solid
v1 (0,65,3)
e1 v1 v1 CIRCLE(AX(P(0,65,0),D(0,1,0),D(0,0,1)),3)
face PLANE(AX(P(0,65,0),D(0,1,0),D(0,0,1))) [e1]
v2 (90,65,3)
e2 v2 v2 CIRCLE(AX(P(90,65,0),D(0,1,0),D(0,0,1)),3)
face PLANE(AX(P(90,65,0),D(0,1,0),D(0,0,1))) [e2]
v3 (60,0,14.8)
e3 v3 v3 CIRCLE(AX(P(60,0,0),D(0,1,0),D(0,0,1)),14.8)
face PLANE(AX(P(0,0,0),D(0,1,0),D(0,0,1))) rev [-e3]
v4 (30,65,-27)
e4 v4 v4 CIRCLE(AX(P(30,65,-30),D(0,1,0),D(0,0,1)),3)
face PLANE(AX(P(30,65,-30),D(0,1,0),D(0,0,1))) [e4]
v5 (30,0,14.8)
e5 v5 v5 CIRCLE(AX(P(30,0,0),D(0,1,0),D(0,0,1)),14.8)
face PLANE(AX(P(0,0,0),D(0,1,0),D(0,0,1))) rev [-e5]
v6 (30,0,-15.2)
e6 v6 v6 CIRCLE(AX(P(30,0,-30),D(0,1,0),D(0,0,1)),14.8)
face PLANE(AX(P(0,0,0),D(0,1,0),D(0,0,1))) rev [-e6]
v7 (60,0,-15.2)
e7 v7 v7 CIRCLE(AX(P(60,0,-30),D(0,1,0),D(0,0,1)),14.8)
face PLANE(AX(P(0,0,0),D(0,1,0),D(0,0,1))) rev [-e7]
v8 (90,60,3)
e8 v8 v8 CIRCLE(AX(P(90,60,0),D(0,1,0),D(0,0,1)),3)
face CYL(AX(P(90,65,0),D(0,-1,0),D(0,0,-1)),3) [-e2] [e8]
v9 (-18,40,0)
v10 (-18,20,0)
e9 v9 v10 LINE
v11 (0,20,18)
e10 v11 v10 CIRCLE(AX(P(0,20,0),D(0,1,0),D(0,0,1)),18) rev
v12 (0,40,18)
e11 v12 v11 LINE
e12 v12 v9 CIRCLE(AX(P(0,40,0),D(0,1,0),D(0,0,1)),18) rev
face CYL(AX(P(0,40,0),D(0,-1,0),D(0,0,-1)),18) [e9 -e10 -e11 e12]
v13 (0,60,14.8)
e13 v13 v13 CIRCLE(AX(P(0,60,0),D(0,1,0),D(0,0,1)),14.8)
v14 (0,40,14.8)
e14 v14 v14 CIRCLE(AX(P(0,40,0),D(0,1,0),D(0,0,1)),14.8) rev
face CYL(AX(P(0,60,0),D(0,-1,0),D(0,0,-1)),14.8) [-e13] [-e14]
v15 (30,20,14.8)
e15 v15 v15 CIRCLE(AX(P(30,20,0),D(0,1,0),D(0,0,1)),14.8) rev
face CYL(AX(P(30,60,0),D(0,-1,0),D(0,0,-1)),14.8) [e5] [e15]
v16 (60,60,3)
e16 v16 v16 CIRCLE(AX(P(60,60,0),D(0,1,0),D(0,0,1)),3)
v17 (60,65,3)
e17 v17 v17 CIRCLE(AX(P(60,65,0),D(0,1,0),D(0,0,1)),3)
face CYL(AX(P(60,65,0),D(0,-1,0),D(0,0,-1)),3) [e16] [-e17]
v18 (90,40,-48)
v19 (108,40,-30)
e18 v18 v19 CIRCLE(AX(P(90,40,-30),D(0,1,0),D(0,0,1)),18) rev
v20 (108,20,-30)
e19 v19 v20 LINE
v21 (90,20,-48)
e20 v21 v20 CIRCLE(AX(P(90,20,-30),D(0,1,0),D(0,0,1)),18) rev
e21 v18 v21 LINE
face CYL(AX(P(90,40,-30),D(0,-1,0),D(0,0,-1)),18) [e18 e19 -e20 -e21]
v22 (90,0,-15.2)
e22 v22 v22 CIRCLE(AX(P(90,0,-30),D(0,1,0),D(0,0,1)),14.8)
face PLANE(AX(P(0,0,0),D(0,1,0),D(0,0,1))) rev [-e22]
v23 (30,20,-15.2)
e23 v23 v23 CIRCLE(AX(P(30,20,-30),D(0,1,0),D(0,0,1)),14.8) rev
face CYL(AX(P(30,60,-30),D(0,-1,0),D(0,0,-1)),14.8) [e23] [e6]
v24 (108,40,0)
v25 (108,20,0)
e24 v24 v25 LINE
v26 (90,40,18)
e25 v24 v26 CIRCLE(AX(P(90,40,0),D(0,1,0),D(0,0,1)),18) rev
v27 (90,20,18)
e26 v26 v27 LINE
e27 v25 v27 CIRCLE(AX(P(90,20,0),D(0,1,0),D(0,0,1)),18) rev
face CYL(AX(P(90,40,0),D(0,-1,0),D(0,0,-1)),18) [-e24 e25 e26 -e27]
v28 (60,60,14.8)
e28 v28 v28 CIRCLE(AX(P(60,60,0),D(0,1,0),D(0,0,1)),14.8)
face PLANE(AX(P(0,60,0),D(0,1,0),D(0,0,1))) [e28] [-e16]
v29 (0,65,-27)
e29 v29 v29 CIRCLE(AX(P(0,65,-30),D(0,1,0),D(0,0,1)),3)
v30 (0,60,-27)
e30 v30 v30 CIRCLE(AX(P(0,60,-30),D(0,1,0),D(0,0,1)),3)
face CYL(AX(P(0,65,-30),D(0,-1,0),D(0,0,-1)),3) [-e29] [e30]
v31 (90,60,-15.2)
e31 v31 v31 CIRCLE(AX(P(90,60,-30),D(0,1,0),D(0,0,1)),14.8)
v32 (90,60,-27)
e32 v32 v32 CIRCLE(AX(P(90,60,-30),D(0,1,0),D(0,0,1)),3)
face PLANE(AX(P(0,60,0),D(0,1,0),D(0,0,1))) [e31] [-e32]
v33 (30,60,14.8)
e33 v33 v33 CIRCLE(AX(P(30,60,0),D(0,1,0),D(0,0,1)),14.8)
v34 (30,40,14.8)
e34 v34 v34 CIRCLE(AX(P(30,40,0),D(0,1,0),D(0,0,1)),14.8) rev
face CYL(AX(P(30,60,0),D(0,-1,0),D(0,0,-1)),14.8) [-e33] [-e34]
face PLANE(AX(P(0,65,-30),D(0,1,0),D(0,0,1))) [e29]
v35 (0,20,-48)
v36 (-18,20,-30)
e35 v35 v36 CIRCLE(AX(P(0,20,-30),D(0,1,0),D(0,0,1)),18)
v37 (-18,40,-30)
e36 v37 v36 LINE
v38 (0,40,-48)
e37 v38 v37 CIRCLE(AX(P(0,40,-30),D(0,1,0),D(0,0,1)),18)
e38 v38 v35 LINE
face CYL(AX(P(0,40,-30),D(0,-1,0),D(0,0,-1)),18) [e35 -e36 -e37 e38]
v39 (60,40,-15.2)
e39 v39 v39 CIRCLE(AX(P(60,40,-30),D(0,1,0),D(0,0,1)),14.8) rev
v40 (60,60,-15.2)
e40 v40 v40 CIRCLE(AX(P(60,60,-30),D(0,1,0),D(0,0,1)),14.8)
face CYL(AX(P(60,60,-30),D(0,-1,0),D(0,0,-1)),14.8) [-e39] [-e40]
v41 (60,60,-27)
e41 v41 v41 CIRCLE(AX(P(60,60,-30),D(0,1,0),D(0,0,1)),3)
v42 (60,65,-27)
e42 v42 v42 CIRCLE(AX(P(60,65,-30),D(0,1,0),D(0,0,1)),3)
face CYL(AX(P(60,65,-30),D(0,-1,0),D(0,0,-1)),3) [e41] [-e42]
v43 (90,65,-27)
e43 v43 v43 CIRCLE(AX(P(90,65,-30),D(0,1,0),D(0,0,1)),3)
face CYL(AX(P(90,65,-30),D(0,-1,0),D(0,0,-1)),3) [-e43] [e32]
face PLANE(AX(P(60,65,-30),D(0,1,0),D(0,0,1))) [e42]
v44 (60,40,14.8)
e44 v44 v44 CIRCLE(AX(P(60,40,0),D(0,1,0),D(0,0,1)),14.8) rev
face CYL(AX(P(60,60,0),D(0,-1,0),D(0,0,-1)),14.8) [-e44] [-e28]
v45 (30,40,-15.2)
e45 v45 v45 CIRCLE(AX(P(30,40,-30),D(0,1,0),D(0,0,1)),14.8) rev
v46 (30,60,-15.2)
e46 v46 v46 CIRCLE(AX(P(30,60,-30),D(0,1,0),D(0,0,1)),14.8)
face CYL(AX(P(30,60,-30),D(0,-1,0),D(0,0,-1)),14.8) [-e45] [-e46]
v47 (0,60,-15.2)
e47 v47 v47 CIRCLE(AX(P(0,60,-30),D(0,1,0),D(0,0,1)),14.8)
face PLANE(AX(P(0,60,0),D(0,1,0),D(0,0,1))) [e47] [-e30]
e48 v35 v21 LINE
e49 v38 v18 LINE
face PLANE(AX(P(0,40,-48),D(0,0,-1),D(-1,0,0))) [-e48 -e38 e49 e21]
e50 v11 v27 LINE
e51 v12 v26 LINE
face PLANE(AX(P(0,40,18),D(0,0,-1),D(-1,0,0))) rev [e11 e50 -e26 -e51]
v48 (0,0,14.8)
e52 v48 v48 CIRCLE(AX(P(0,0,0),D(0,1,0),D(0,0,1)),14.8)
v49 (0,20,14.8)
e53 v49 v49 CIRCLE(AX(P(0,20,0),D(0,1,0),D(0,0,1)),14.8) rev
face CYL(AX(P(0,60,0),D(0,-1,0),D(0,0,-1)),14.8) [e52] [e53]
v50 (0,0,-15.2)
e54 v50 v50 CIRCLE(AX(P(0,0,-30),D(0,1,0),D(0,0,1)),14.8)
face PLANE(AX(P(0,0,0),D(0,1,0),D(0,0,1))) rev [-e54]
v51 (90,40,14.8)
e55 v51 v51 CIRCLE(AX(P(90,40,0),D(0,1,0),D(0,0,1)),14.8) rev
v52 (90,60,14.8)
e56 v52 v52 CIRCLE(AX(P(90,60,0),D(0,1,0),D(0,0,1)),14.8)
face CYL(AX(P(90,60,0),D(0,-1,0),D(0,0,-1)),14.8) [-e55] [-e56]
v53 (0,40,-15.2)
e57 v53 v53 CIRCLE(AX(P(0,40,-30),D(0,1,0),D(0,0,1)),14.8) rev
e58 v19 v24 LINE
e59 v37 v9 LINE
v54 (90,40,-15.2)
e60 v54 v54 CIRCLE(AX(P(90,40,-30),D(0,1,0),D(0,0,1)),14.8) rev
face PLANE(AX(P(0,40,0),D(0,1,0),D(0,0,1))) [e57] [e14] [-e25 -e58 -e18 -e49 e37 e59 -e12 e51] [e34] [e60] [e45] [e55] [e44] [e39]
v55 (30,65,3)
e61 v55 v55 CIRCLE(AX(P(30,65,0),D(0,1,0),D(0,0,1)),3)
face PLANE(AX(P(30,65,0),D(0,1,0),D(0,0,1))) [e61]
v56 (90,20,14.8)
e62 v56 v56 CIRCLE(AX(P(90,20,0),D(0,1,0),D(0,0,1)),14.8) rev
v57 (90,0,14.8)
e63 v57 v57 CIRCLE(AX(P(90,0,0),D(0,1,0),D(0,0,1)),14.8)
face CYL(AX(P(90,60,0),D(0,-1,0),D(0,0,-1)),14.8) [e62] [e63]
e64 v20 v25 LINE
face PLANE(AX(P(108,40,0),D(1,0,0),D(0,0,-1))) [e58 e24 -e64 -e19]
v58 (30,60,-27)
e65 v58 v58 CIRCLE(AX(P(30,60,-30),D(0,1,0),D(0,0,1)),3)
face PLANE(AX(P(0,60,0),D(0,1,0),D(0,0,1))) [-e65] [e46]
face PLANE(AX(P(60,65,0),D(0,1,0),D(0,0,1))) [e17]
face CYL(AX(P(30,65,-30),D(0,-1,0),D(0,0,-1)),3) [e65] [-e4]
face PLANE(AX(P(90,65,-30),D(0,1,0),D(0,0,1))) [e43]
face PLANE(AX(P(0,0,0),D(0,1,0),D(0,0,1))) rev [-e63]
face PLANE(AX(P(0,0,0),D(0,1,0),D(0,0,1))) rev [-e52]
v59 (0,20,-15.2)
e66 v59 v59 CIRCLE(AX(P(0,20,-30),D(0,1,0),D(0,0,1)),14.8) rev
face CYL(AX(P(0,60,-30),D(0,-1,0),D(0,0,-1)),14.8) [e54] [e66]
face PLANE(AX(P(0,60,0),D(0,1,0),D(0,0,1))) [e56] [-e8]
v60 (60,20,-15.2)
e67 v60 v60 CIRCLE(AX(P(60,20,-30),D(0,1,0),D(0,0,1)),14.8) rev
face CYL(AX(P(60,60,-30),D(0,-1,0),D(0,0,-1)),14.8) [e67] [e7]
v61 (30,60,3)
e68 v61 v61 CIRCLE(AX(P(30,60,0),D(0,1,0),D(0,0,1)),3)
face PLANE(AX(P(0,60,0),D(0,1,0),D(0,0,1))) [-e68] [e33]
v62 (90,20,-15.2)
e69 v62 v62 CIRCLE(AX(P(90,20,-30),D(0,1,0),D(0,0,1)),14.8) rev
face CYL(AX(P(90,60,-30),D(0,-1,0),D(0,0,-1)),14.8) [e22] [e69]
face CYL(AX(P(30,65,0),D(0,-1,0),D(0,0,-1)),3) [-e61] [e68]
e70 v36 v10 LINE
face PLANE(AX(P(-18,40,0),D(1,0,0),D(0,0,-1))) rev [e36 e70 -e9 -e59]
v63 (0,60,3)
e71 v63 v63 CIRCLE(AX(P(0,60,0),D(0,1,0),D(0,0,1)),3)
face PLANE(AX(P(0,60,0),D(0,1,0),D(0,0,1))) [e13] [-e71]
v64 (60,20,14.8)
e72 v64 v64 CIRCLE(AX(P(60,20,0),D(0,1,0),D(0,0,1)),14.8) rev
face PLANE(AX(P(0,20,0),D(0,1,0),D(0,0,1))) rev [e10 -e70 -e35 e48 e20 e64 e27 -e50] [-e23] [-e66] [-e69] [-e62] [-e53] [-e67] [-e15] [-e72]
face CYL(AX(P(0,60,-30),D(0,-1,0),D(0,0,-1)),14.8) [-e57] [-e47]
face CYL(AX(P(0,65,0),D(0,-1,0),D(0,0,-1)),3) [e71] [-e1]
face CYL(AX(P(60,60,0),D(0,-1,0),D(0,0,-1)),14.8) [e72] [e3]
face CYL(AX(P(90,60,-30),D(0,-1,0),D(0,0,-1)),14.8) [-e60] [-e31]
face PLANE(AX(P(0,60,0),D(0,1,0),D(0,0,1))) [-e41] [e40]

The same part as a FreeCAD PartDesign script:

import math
import FreeCAD as App
import Part
import Sketcher
from FreeCAD import Vector
Q = App.Units.Quantity

doc = App.newDocument("Part")
body = doc.addObject("PartDesign::Body", "Body")

# Sketch on XZ plane
sketch1 = doc.addObject("Sketcher::SketchObject", "Sketch")
body.addObject(sketch1)
sketch1.AttachmentSupport = (doc.XZ_Plane, [""])
sketch1.MapMode = "FlatFace"
sketch1.AttachmentOffset = App.Placement(Vector(0, 0, -20), App.Rotation())
sketch1.addGeometry([
    Part.LineSegment(Vector(90, -48, 0), Vector(0, -48, 0)),  # 0
    Part.ArcOfCircle(Part.Circle(Vector(0, -30, 0), Vector(0, 0, 1), 18), math.radians(-180), math.radians(-90)),  # 1
    Part.LineSegment(Vector(-18, -30, 0), Vector(-18, 0, 0)),  # 2
    Part.ArcOfCircle(Part.Circle(Vector(0, 0, 0), Vector(0, 0, 1), 18), math.radians(90), math.radians(180)),  # 3
    Part.LineSegment(Vector(0, 18, 0), Vector(90, 18, 0)),  # 4
    Part.ArcOfCircle(Part.Circle(Vector(90, 0, 0), Vector(0, 0, 1), 18), math.radians(0), math.radians(90)),  # 5
    Part.LineSegment(Vector(108, 0, 0), Vector(108, -30, 0)),  # 6
    Part.ArcOfCircle(Part.Circle(Vector(90, -30, 0), Vector(0, 0, 1), 18), math.radians(-90), math.radians(0)),  # 7
], False)
sketch1.addConstraint([
    Sketcher.Constraint("Tangent", 0, 2, 1, 2),
    Sketcher.Constraint("Tangent", 1, 1, 2, 1),
    Sketcher.Constraint("Tangent", 2, 2, 3, 2),
    Sketcher.Constraint("Tangent", 3, 1, 4, 1),
    Sketcher.Constraint("Tangent", 4, 2, 5, 2),
    Sketcher.Constraint("Tangent", 5, 1, 6, 1),
    Sketcher.Constraint("Tangent", 6, 2, 7, 2),
    Sketcher.Constraint("Tangent", 7, 1, 0, 1),
    Sketcher.Constraint("Horizontal", 0),
    Sketcher.Constraint("Vertical", 2),
    Sketcher.Constraint("Horizontal", 4),
    Sketcher.Constraint("Vertical", 6),
    Sketcher.Constraint("Coincident", 3, 3, -1, 1),
    Sketcher.Constraint("Equal", 1, 3),
    Sketcher.Constraint("Equal", 3, 5),
    Sketcher.Constraint("Equal", 5, 7),
    Sketcher.Constraint("Radius", 1, Q("18 mm")),
    Sketcher.Constraint("DistanceX", 0, 2, 0, 1, Q("90 mm")),
    Sketcher.Constraint("DistanceY", 2, 1, 2, 2, Q("30 mm")),
])
pad1 = doc.addObject("PartDesign::Pad", "Pad")
body.addObject(pad1)
pad1.Profile = sketch1
pad1.Length = 20
pad1.Reversed = True

# Sketch on XZ plane
sketch2 = doc.addObject("Sketcher::SketchObject", "Sketch001")
body.addObject(sketch2)
sketch2.AttachmentSupport = (doc.XZ_Plane, [""])
sketch2.MapMode = "FlatFace"
sketch2.addGeometry([
    Part.Circle(Vector(0, -30, 0), Vector(0, 0, 1), 15),  # 0
    Part.Circle(Vector(30, -30, 0), Vector(0, 0, 1), 15),  # 1
    Part.Circle(Vector(60, -30, 0), Vector(0, 0, 1), 15),  # 2
    Part.Circle(Vector(90, -30, 0), Vector(0, 0, 1), 15),  # 3
    Part.Circle(Vector(90, 0, 0), Vector(0, 0, 1), 15),  # 4
    Part.Circle(Vector(60, 0, 0), Vector(0, 0, 1), 15),  # 5
    Part.Circle(Vector(30, 0, 0), Vector(0, 0, 1), 15),  # 6
    Part.Circle(Vector(0, 0, 0), Vector(0, 0, 1), 15),  # 7
], False)
sketch2.addConstraint([
    Sketcher.Constraint("Coincident", 7, 3, -1, 1),
    Sketcher.Constraint("Equal", 0, 1),
    Sketcher.Constraint("Equal", 1, 2),
    Sketcher.Constraint("Equal", 2, 3),
    Sketcher.Constraint("Equal", 3, 4),
    Sketcher.Constraint("Equal", 4, 5),
    Sketcher.Constraint("Equal", 5, 6),
    Sketcher.Constraint("Equal", 6, 7),
    Sketcher.Constraint("PointOnObject", 0, 3, -2),
    Sketcher.Constraint("PointOnObject", 4, 3, -1),
    Sketcher.Constraint("PointOnObject", 5, 3, -1),
    Sketcher.Constraint("PointOnObject", 6, 3, -1),
    Sketcher.Constraint("Horizontal", 0, 3, 1, 3),
    Sketcher.Constraint("Horizontal", 1, 3, 2, 3),
    Sketcher.Constraint("Horizontal", 2, 3, 3, 3),
    Sketcher.Constraint("Vertical", 3, 3, 4, 3),
    Sketcher.Constraint("Vertical", 2, 3, 5, 3),
    Sketcher.Constraint("Vertical", 1, 3, 6, 3),
    Sketcher.Constraint("Diameter", 0, Q("29.6 mm")),
    Sketcher.Constraint("DistanceY", 0, 3, -1, 1, Q("30 mm")),
    Sketcher.Constraint("DistanceX", -1, 1, 1, 3, Q("30 mm")),
    Sketcher.Constraint("DistanceX", -1, 1, 2, 3, Q("60 mm")),
    Sketcher.Constraint("DistanceX", -1, 1, 3, 3, Q("90 mm")),
])
pad2 = doc.addObject("PartDesign::Pad", "Pad001")
body.addObject(pad2)
pad2.Profile = sketch2
pad2.Length = 60
pad2.Reversed = True

# Sketch on XZ plane
sketch3 = doc.addObject("Sketcher::SketchObject", "Sketch002")
body.addObject(sketch3)
sketch3.AttachmentSupport = (doc.XZ_Plane, [""])
sketch3.MapMode = "FlatFace"
sketch3.AttachmentOffset = App.Placement(Vector(0, 0, -60), App.Rotation())
sketch3.addGeometry([
    Part.Circle(Vector(0, -30, 0), Vector(0, 0, 1), 3),  # 0
    Part.Circle(Vector(30, -30, 0), Vector(0, 0, 1), 3),  # 1
    Part.Circle(Vector(60, -30, 0), Vector(0, 0, 1), 3),  # 2
    Part.Circle(Vector(90, -30, 0), Vector(0, 0, 1), 3),  # 3
    Part.Circle(Vector(30, 0, 0), Vector(0, 0, 1), 3),  # 4
    Part.Circle(Vector(60, 0, 0), Vector(0, 0, 1), 3),  # 5
    Part.Circle(Vector(90, 0, 0), Vector(0, 0, 1), 3),  # 6
    Part.Circle(Vector(0, 0, 0), Vector(0, 0, 1), 3),  # 7
], False)
sketch3.addConstraint([
    Sketcher.Constraint("Coincident", 7, 3, -1, 1),
    Sketcher.Constraint("Equal", 0, 1),
    Sketcher.Constraint("Equal", 1, 2),
    Sketcher.Constraint("Equal", 2, 3),
    Sketcher.Constraint("Equal", 3, 4),
    Sketcher.Constraint("Equal", 4, 5),
    Sketcher.Constraint("Equal", 5, 6),
    Sketcher.Constraint("Equal", 6, 7),
    Sketcher.Constraint("PointOnObject", 0, 3, -2),
    Sketcher.Constraint("PointOnObject", 4, 3, -1),
    Sketcher.Constraint("PointOnObject", 5, 3, -1),
    Sketcher.Constraint("PointOnObject", 6, 3, -1),
    Sketcher.Constraint("Horizontal", 0, 3, 1, 3),
    Sketcher.Constraint("Horizontal", 1, 3, 2, 3),
    Sketcher.Constraint("Horizontal", 2, 3, 3, 3),
    Sketcher.Constraint("Vertical", 1, 3, 4, 3),
    Sketcher.Constraint("Vertical", 2, 3, 5, 3),
    Sketcher.Constraint("Vertical", 3, 3, 6, 3),
    Sketcher.Constraint("Diameter", 0, Q("6 mm")),
    Sketcher.Constraint("DistanceY", 0, 3, -1, 1, Q("30 mm")),
    Sketcher.Constraint("DistanceX", -1, 1, 1, 3, Q("30 mm")),
    Sketcher.Constraint("DistanceX", -1, 1, 2, 3, Q("60 mm")),
    Sketcher.Constraint("DistanceX", -1, 1, 3, 3, Q("90 mm")),
])
pad3 = doc.addObject("PartDesign::Pad", "Pad002")
body.addObject(pad3)
pad3.Profile = sketch3
pad3.Length = 5
pad3.Reversed = True

doc.recompute()
